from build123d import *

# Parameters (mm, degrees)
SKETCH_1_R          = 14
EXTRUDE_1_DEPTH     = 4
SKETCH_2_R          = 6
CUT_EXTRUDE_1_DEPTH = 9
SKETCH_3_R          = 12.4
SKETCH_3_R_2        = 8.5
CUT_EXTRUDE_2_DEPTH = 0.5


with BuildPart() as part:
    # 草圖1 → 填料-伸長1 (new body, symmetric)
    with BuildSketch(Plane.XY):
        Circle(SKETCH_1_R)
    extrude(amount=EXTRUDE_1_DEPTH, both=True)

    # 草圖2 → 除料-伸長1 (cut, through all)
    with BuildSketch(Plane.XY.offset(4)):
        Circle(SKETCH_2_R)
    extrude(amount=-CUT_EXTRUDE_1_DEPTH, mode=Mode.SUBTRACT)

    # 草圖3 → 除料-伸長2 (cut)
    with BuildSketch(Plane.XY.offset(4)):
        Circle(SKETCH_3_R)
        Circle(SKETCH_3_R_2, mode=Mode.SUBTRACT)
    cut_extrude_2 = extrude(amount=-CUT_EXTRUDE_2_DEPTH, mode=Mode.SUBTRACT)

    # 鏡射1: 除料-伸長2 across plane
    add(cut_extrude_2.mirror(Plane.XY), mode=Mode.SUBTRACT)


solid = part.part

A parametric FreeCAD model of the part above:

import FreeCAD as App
import Part
import Sketcher
from FreeCAD import Vector

doc = App.newDocument("Part")
body = doc.addObject("PartDesign::Body", "Body")

# Sketch on XY plane
sketch1 = body.newObject("Sketcher::SketchObject", "Sketch")
sketch1.AttachmentSupport = (doc.getObject("XY_Plane"), [""])
sketch1.MapMode = "FlatFace"
sketch1.addGeometry(Part.Circle(Vector(0, 0, 0), Vector(0, 0, 1), 14), False)
sketch1.addConstraint([
    Sketcher.Constraint("Coincident", 0, 3, -1, 1),
    Sketcher.Constraint("Diameter", 0, 28.0),
])
pad1 = body.newObject("PartDesign::Pad", "Pad")
pad1.Profile = sketch1
pad1.Length = 8
pad1.Midplane = True

# Sketch on XY plane
sketch2 = body.newObject("Sketcher::SketchObject", "Sketch001")
sketch2.AttachmentSupport = (doc.getObject("XY_Plane"), [""])
sketch2.MapMode = "FlatFace"
sketch2.AttachmentOffset = App.Placement(Vector(0, 0, 4), App.Rotation())
sketch2.addGeometry(Part.Circle(Vector(0, 0, 0), Vector(0, 0, 1), 6), False)
sketch2.addConstraint([
    Sketcher.Constraint("Coincident", 0, 3, -1, 1),
    Sketcher.Constraint("Diameter", 0, 12.0),
])
pocket1 = body.newObject("PartDesign::Pocket", "Pocket")
pocket1.Profile = sketch2
pocket1.Type = "ThroughAll"

# Sketch on XY plane
sketch3 = body.newObject("Sketcher::SketchObject", "Sketch002")
sketch3.AttachmentSupport = (doc.getObject("XY_Plane"), [""])
sketch3.MapMode = "FlatFace"
sketch3.AttachmentOffset = App.Placement(Vector(0, 0, 4), App.Rotation())
sketch3.addGeometry([
    Part.Circle(Vector(0, 0, 0), Vector(0, 0, 1), 12),
    Part.Circle(Vector(0, 0, 0), Vector(0, 0, 1), 8),
], False)
sketch3.addConstraint([
    Sketcher.Constraint("Coincident", 0, 3, -1, 1),
    Sketcher.Constraint("Coincident", 1, 3, -1, 1),
    Sketcher.Constraint("Diameter", 1, 17.0),
    Sketcher.Constraint("Diameter", 0, 24.8),
])
pocket2 = body.newObject("PartDesign::Pocket", "Pocket001")
pocket2.Profile = sketch3
pocket2.Length = 0.5
doc.recompute()

mirrored = body.newObject("PartDesign::Mirrored", "Mirrored")
mirrored.Originals = [pocket2]
mirrored.MirrorPlane = (doc.getObject("XY_Plane"), [""])
body.Tip = mirrored

doc.recompute()
